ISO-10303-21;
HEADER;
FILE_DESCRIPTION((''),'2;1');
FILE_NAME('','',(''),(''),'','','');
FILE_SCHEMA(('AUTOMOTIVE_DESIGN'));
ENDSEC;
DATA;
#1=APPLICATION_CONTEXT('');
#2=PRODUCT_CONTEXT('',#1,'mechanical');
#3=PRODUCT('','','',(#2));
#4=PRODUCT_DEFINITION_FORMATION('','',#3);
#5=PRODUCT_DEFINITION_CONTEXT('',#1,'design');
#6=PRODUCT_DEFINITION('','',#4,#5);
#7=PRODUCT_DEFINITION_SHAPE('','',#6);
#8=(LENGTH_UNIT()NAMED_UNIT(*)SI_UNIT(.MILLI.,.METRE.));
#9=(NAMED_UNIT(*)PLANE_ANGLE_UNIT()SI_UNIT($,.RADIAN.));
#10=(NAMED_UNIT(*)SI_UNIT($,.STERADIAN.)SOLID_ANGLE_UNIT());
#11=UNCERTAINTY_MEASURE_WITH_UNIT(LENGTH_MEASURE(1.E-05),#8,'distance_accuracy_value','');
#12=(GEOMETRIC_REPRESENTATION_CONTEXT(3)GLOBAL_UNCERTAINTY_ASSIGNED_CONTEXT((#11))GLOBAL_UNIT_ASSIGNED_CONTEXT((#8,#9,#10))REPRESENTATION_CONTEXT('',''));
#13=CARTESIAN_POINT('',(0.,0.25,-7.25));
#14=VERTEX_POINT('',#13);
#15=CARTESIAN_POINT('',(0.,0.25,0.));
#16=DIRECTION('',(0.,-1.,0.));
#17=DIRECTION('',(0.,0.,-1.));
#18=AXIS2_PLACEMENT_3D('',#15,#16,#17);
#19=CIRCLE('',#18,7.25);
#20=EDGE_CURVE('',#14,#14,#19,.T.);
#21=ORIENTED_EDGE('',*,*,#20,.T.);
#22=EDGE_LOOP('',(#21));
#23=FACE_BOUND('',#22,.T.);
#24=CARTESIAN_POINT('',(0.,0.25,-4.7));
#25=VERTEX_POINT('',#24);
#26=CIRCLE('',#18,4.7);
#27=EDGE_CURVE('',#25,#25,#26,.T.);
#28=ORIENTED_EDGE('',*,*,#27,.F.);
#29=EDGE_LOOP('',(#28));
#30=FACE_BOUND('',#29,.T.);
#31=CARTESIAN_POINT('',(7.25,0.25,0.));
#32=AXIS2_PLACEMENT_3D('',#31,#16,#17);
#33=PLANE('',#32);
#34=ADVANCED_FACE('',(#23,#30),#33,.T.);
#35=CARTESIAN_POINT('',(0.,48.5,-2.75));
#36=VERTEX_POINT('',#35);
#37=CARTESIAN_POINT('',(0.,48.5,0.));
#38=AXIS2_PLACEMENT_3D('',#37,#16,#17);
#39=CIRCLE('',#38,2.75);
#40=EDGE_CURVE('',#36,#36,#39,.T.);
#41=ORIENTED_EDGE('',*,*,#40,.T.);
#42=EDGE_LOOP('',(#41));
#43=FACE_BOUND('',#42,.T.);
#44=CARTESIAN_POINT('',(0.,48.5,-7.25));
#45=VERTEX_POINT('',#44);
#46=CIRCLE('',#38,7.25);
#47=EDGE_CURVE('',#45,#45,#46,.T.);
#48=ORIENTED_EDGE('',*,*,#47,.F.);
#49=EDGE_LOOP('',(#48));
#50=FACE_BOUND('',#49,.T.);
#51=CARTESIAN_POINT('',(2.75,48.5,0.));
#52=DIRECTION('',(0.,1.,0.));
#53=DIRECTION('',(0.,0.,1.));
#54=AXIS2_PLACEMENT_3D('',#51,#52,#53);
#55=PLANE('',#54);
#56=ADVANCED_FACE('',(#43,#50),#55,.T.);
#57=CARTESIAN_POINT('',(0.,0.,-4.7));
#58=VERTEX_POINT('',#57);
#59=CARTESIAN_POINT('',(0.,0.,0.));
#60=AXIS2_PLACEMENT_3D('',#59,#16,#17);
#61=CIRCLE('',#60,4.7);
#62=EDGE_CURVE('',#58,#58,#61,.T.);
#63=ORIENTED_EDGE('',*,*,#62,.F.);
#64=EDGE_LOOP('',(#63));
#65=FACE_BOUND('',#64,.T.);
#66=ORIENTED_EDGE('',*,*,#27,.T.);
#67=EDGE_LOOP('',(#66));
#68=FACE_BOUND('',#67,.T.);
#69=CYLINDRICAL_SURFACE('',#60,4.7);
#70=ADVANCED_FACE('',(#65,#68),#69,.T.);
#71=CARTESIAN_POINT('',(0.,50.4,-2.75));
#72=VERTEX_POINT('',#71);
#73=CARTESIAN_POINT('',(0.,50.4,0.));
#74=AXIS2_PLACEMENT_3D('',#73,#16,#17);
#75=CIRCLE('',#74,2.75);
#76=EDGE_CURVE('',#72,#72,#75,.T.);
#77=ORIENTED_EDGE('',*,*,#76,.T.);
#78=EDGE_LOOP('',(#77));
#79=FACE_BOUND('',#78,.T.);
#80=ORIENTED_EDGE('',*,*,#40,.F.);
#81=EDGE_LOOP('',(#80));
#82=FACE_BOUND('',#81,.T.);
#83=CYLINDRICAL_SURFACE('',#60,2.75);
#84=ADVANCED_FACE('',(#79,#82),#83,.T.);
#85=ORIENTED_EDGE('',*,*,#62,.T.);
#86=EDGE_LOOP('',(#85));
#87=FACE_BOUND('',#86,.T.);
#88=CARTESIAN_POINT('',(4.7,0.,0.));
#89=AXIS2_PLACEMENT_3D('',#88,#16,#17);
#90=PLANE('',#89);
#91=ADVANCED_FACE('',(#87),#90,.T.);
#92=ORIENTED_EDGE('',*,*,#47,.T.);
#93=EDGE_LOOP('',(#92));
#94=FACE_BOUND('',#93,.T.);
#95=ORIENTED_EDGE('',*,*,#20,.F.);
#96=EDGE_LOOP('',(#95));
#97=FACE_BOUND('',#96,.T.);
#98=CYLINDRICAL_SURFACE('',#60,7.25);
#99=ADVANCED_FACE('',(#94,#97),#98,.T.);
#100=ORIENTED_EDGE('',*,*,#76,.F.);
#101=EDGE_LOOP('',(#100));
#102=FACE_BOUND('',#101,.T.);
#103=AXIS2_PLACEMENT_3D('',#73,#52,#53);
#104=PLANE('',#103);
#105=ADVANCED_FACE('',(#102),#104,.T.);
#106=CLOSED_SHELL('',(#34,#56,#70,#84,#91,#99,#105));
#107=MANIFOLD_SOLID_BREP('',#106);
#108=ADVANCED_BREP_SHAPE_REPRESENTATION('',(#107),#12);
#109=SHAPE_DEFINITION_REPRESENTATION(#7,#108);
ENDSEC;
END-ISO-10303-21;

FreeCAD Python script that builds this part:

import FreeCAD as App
import Part
import Sketcher
Q = App.Units.Quantity

doc = App.newDocument("Part")
body = doc.addObject("PartDesign::Body", "Body")

sketch1 = body.newObject("Sketcher::SketchObject", "Sketch")
sketch1.AttachmentSupport = (doc.getObject("XY_Plane"), [""])
sketch1.MapMode = "FlatFace"
sketch1.addGeometry([
    Part.LineSegment(App.Vector(2.75, 50.4, 0), App.Vector(0, 50.4, 0)),
    Part.LineSegment(App.Vector(0, 50.4, 0), App.Vector(0, 0, 0)),
    Part.LineSegment(App.Vector(0, 0, 0), App.Vector(4.7, 0, 0)),
    Part.LineSegment(App.Vector(4.7, 0, 0), App.Vector(4.7, 0.25, 0)),
    Part.LineSegment(App.Vector(4.7, 0.25, 0), App.Vector(7.25, 0.25, 0)),
    Part.LineSegment(App.Vector(7.25, 0.25, 0), App.Vector(7.25, 48.5, 0)),
    Part.LineSegment(App.Vector(7.25, 48.5, 0), App.Vector(2.75, 48.5, 0)),
    Part.LineSegment(App.Vector(2.75, 48.5, 0), App.Vector(2.75, 50.4, 0)),
], False)
sketch1.addConstraint([
    Sketcher.Constraint("Coincident", 0, 2, 1, 1),
    Sketcher.Constraint("Coincident", 1, 2, 2, 1),
    Sketcher.Constraint("Coincident", 2, 2, 3, 1),
    Sketcher.Constraint("Coincident", 3, 2, 4, 1),
    Sketcher.Constraint("Coincident", 4, 2, 5, 1),
    Sketcher.Constraint("Coincident", 5, 2, 6, 1),
    Sketcher.Constraint("Coincident", 6, 2, 7, 1),
    Sketcher.Constraint("Coincident", 7, 2, 0, 1),
    Sketcher.Constraint("Horizontal", 0),
    Sketcher.Constraint("Vertical", 1),
    Sketcher.Constraint("Horizontal", 2),
    Sketcher.Constraint("Vertical", 3),
    Sketcher.Constraint("Horizontal", 4),
    Sketcher.Constraint("Vertical", 5),
    Sketcher.Constraint("Horizontal", 6),
    Sketcher.Constraint("Vertical", 7),
    Sketcher.Constraint("Coincident", 1, 2, -1, 1),
    Sketcher.Constraint("DistanceX", 2, 1, 2, 2, Q("4.7 mm")),
    Sketcher.Constraint("DistanceX", 6, 2, 6, 1, Q("4.5 mm")),
    Sketcher.Constraint("DistanceY", 1, 2, 1, 1, Q("50.4 mm")),
    Sketcher.Constraint("DistanceY", 7, 1, 7, 2, Q("1.9 mm")),
    Sketcher.Constraint("DistanceX", 0, 2, 0, 1, Q("2.75 mm")),
    Sketcher.Constraint("DistanceY", 3, 1, 3, 2, Q("0.25 mm")),
])
revolution = body.newObject("PartDesign::Revolution", "Revolution")
revolution.Profile = sketch1
revolution.ReferenceAxis = (sketch1, ["V_Axis"])
revolution.Angle = 360

doc.recompute()
